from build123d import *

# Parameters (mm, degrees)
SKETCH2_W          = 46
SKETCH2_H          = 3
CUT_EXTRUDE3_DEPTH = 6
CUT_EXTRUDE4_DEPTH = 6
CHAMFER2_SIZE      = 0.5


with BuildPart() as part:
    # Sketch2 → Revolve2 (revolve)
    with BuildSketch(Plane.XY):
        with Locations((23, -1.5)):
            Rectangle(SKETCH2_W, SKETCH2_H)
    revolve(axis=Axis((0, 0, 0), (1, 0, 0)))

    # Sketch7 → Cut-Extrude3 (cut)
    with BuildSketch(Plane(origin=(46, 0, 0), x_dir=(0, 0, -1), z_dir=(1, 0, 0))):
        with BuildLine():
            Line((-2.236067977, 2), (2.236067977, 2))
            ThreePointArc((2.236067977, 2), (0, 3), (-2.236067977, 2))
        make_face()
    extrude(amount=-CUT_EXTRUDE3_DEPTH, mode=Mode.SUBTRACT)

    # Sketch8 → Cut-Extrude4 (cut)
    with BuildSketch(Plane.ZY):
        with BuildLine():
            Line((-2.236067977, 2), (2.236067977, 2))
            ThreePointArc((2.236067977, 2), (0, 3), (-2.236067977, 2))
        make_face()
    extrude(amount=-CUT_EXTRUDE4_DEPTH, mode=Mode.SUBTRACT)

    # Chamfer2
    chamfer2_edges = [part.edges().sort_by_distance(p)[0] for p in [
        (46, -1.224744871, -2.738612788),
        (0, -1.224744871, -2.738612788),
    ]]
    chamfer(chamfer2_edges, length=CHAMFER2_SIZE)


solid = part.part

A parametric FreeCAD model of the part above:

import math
import FreeCAD as App
import Part
import Sketcher


def edges_at(feature, points):
    """Names of the edges that pass closest to the given points."""
    edges = feature.Shape.Edges
    near = lambda p: min(range(len(edges)), key=lambda i: edges[i].distToShape(Part.Vertex(*p))[0])
    return sorted({f"Edge{near(p) + 1}" for p in points})


def add_polygon(sketch, points):
    """Adds a closed chain of lines whose ends are joined by coincident constraints."""
    first, n = sketch.GeometryCount, len(points)
    for a, b in zip(points, points[1:] + points[:1]):
        sketch.addGeometry(Part.LineSegment(App.Vector(*a, 0), App.Vector(*b, 0)), False)
    for i in range(n):
        sketch.addConstraint(Sketcher.Constraint("Coincident", first + i, 2, first + (i + 1) % n, 1))

doc = App.newDocument("Part")
body = doc.addObject("PartDesign::Body", "Body")

sketch1 = doc.addObject("Sketcher::SketchObject", "Sketch")
body.addObject(sketch1)
sketch1.AttachmentSupport = (doc.XY_Plane, [""])
sketch1.MapMode = "FlatFace"
add_polygon(sketch1, [(0, 0), (0, -3), (46, -3), (46, 0)])
sketch1.addConstraint(Sketcher.Constraint("Vertical", 0))
sketch1.addConstraint(Sketcher.Constraint("Horizontal", 1))
sketch1.addConstraint(Sketcher.Constraint("Vertical", 2))
sketch1.addConstraint(Sketcher.Constraint("Horizontal", 3))
sketch1.addConstraint(Sketcher.Constraint("Coincident", 3, 2, -1, 1))
sketch1.addConstraint(Sketcher.Constraint("DistanceX", 1, 1, 1, 2, 46.0))
sketch1.addConstraint(Sketcher.Constraint("DistanceY", 0, 2, 0, 1, 3.0))
revolution = doc.addObject("PartDesign::Revolution", "Revolution")
body.addObject(revolution)
revolution.Profile = sketch1
revolution.ReferenceAxis = (sketch1, ["H_Axis"])
revolution.Angle = 360

sketch2 = doc.addObject("Sketcher::SketchObject", "Sketch001")
body.addObject(sketch2)
sketch2.AttachmentSupport = (doc.YZ_Plane, [""])
sketch2.MapMode = "FlatFace"
sketch2.AttachmentOffset = App.Placement(App.Vector(0, 0, 46), App.Rotation())
sketch2.addGeometry(Part.LineSegment(App.Vector(2, 2.236068, 0), App.Vector(2, -2.236068, 0)), False)
sketch2.addGeometry(Part.ArcOfCircle(Part.Circle(App.Vector(0, 0, 0), App.Vector(0, 0, 1), 3), math.radians(-48.189685), math.radians(48.189685)), False)
sketch2.addConstraint(Sketcher.Constraint("Coincident", 0, 1, 1, 2))
sketch2.addConstraint(Sketcher.Constraint("Coincident", 1, 1, 0, 2))
sketch2.addConstraint(Sketcher.Constraint("Vertical", 0))
sketch2.addConstraint(Sketcher.Constraint("Coincident", 1, 3, -1, 1))
sketch2.addConstraint(Sketcher.Constraint("Radius", 1, 3.0))
sketch2.addConstraint(Sketcher.Constraint("DistanceX", -1, 1, 0, 1, 2.0))
pocket1 = doc.addObject("PartDesign::Pocket", "Pocket")
body.addObject(pocket1)
pocket1.Profile = sketch2
pocket1.Length = 6

sketch3 = doc.addObject("Sketcher::SketchObject", "Sketch002")
body.addObject(sketch3)
sketch3.AttachmentSupport = (doc.YZ_Plane, [""])
sketch3.MapMode = "FlatFace"
sketch3.addGeometry(Part.LineSegment(App.Vector(2, -2.236068, 0), App.Vector(2, 2.236068, 0)), False)
sketch3.addGeometry(Part.ArcOfCircle(Part.Circle(App.Vector(0, 0, 0), App.Vector(0, 0, 1), 3), math.radians(-48.189685), math.radians(48.189685)), False)
sketch3.addConstraint(Sketcher.Constraint("Coincident", 0, 1, 1, 1))
sketch3.addConstraint(Sketcher.Constraint("Coincident", 1, 2, 0, 2))
sketch3.addConstraint(Sketcher.Constraint("Vertical", 0))
sketch3.addConstraint(Sketcher.Constraint("Coincident", 1, 3, -1, 1))
sketch3.addConstraint(Sketcher.Constraint("Radius", 1, 3.0))
sketch3.addConstraint(Sketcher.Constraint("DistanceX", -1, 1, 0, 1, 2.0))
pocket2 = doc.addObject("PartDesign::Pocket", "Pocket001")
body.addObject(pocket2)
pocket2.Profile = sketch3
pocket2.Length = 6
pocket2.Reversed = True
doc.recompute()

chamfer = doc.addObject("PartDesign::Chamfer", "Chamfer")
body.addObject(chamfer)
chamfer.Base = (pocket2, edges_at(pocket2, [(46, -1.225, -2.739), (0, -1.225, -2.739)]))
chamfer.Size = 0.5

doc.recompute()
